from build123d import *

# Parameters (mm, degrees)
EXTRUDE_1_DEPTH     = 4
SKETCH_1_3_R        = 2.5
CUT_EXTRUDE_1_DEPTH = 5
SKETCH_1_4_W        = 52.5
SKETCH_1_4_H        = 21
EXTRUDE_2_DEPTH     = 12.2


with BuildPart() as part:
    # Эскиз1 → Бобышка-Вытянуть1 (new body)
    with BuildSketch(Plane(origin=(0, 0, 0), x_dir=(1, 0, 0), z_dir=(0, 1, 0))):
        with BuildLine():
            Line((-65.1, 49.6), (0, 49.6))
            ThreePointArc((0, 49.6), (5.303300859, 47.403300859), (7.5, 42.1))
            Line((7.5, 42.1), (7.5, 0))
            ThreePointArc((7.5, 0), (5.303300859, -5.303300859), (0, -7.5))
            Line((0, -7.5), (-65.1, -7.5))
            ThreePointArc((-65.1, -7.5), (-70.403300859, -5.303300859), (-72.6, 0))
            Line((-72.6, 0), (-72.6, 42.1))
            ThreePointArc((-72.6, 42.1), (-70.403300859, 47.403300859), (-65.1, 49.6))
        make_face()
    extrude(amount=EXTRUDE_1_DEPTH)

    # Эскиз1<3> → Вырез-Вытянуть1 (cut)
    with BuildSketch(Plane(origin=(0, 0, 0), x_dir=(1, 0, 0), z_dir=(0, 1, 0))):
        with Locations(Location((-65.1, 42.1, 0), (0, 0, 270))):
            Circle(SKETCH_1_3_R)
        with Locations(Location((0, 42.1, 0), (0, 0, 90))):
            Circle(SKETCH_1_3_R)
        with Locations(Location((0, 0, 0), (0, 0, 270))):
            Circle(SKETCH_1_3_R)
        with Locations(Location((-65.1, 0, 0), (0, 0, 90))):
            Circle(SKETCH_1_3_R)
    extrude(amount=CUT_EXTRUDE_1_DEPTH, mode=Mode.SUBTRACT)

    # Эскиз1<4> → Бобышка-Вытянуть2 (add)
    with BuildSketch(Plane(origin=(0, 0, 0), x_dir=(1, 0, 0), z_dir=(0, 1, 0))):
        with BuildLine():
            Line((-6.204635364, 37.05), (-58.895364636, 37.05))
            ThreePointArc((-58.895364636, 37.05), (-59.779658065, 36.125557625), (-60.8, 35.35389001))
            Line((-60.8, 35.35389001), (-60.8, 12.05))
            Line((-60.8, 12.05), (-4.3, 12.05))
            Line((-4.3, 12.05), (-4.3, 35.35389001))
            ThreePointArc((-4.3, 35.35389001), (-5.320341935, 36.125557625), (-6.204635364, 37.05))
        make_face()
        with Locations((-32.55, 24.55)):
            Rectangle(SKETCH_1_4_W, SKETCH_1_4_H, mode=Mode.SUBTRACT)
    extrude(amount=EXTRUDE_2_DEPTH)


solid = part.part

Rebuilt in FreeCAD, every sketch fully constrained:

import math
import FreeCAD as App
import Part
import Sketcher
Q = App.Units.Quantity

doc = App.newDocument("Part")
body = doc.addObject("PartDesign::Body", "Body")

# Sketch on XZ plane
sketch1 = body.newObject("Sketcher::SketchObject", "Sketch")
sketch1.AttachmentSupport = (doc.getObject("XZ_Plane"), [""])
sketch1.MapMode = "FlatFace"
sketch1.addGeometry([
    Part.LineSegment(App.Vector(0, -49.6, 0), App.Vector(-65.1, -49.6, 0)),  # 0
    Part.ArcOfCircle(Part.Circle(App.Vector(-65.1, -42.1, 0), App.Vector(0, 0, 1), 7.5), math.radians(180), math.radians(270)),  # 1
    Part.LineSegment(App.Vector(-72.6, -42.1, 0), App.Vector(-72.6, 0, 0)),  # 2
    Part.ArcOfCircle(Part.Circle(App.Vector(-65.1, 0, 0), App.Vector(0, 0, 1), 7.5), math.radians(90), math.radians(180)),  # 3
    Part.LineSegment(App.Vector(-65.1, 7.5, 0), App.Vector(0, 7.5, 0)),  # 4
    Part.ArcOfCircle(Part.Circle(App.Vector(0, 0, 0), App.Vector(0, 0, 1), 7.5), math.radians(0), math.radians(90)),  # 5
    Part.LineSegment(App.Vector(7.5, 0, 0), App.Vector(7.5, -42.1, 0)),  # 6
    Part.ArcOfCircle(Part.Circle(App.Vector(0, -42.1, 0), App.Vector(0, 0, 1), 7.5), math.radians(-90), math.radians(0)),  # 7
], False)
sketch1.addConstraint([
    Sketcher.Constraint("Tangent", 0, 2, 1, 2),
    Sketcher.Constraint("Tangent", 1, 1, 2, 1),
    Sketcher.Constraint("Tangent", 2, 2, 3, 2),
    Sketcher.Constraint("Tangent", 3, 1, 4, 1),
    Sketcher.Constraint("Tangent", 4, 2, 5, 2),
    Sketcher.Constraint("Tangent", 5, 1, 6, 1),
    Sketcher.Constraint("Tangent", 6, 2, 7, 2),
    Sketcher.Constraint("Tangent", 7, 1, 0, 1),
    Sketcher.Constraint("Horizontal", 0),
    Sketcher.Constraint("Vertical", 2),
    Sketcher.Constraint("Horizontal", 4),
    Sketcher.Constraint("Vertical", 6),
    Sketcher.Constraint("Coincident", 5, 3, -1, 1),
    Sketcher.Constraint("Equal", 1, 3),
    Sketcher.Constraint("Equal", 3, 5),
    Sketcher.Constraint("Equal", 5, 7),
    Sketcher.Constraint("Radius", 1, Q("7.5 mm")),
    Sketcher.Constraint("DistanceX", 0, 2, 0, 1, Q("65.1 mm")),
    Sketcher.Constraint("DistanceY", 2, 1, 2, 2, Q("42.1 mm")),
])
pad1 = body.newObject("PartDesign::Pad", "Pad")
pad1.Profile = sketch1
pad1.Length = 4
pad1.Reversed = True

# Sketch on XZ plane
sketch2 = body.newObject("Sketcher::SketchObject", "Sketch001")
sketch2.AttachmentSupport = (doc.getObject("XZ_Plane"), [""])
sketch2.MapMode = "FlatFace"
sketch2.addGeometry([
    Part.Circle(App.Vector(-65.1, -42.1, 0), App.Vector(0, 0, 1), 2.5),
    Part.Circle(App.Vector(0, -42.1, 0), App.Vector(0, 0, 1), 2.5),
    Part.Circle(App.Vector(0, 0, 0), App.Vector(0, 0, 1), 2.5),
    Part.Circle(App.Vector(-65.1, 0, 0), App.Vector(0, 0, 1), 2.5),
], False)
sketch2.addConstraint([
    Sketcher.Constraint("Coincident", 2, 3, -1, 1),
    Sketcher.Constraint("Equal", 0, 1),
    Sketcher.Constraint("Equal", 1, 2),
    Sketcher.Constraint("Equal", 2, 3),
    Sketcher.Constraint("PointOnObject", 1, 3, -2),
    Sketcher.Constraint("PointOnObject", 3, 3, -1),
    Sketcher.Constraint("Horizontal", 0, 3, 1, 3),
    Sketcher.Constraint("Vertical", 0, 3, 3, 3),
    Sketcher.Constraint("Diameter", 0, Q("5 mm")),
    Sketcher.Constraint("DistanceX", 0, 3, -1, 1, Q("65.1 mm")),
    Sketcher.Constraint("DistanceY", 0, 3, -1, 1, Q("42.1 mm")),
])
pocket1 = body.newObject("PartDesign::Pocket", "Pocket")
pocket1.Profile = sketch2
pocket1.Length = 5

# Sketch on XZ plane
sketch3 = body.newObject("Sketcher::SketchObject", "Sketch002")
sketch3.AttachmentSupport = (doc.getObject("XZ_Plane"), [""])
sketch3.MapMode = "FlatFace"
sketch3.addGeometry([
    Part.LineSegment(App.Vector(-6.204635, -37.05, 0), App.Vector(-58.895365, -37.05, 0)),  # 0
    Part.ArcOfCircle(Part.Circle(App.Vector(-65.1, -42.1, 0), App.Vector(0, 0, 1), 8), math.radians(39.142406), math.radians(57.486385)),  # 1
    Part.LineSegment(App.Vector(-60.8, -35.35389, 0), App.Vector(-60.8, -12.05, 0)),  # 2
    Part.LineSegment(App.Vector(-60.8, -12.05, 0), App.Vector(-4.3, -12.05, 0)),  # 3
    Part.LineSegment(App.Vector(-4.3, -12.05, 0), App.Vector(-4.3, -35.35389, 0)),  # 4
    Part.ArcOfCircle(Part.Circle(App.Vector(0, -42.1, 0), App.Vector(0, 0, 1), 8), math.radians(122.513615), math.radians(140.857594)),  # 5
    Part.LineSegment(App.Vector(-6.3, -14.05, 0), App.Vector(-58.8, -14.05, 0)),  # 6
    Part.LineSegment(App.Vector(-58.8, -14.05, 0), App.Vector(-58.8, -35.05, 0)),  # 7
    Part.LineSegment(App.Vector(-58.8, -35.05, 0), App.Vector(-6.3, -35.05, 0)),  # 8
    Part.LineSegment(App.Vector(-6.3, -35.05, 0), App.Vector(-6.3, -14.05, 0)),  # 9
], False)
sketch3.addConstraint([
    Sketcher.Constraint("Coincident", 0, 2, 1, 1),
    Sketcher.Constraint("Coincident", 1, 2, 2, 1),
    Sketcher.Constraint("Coincident", 2, 2, 3, 1),
    Sketcher.Constraint("Coincident", 3, 2, 4, 1),
    Sketcher.Constraint("Coincident", 4, 2, 5, 1),
    Sketcher.Constraint("Coincident", 5, 2, 0, 1),
    Sketcher.Constraint("Coincident", 6, 2, 7, 1),
    Sketcher.Constraint("Coincident", 7, 2, 8, 1),
    Sketcher.Constraint("Coincident", 8, 2, 9, 1),
    Sketcher.Constraint("Coincident", 9, 2, 6, 1),
    Sketcher.Constraint("Horizontal", 0),
    Sketcher.Constraint("Vertical", 2),
    Sketcher.Constraint("Horizontal", 3),
    Sketcher.Constraint("Vertical", 4),
    Sketcher.Constraint("Horizontal", 6),
    Sketcher.Constraint("Vertical", 7),
    Sketcher.Constraint("Horizontal", 8),
    Sketcher.Constraint("Vertical", 9),
    Sketcher.Constraint("Equal", 1, 5),
    Sketcher.Constraint("PointOnObject", 5, 3, -2),
    Sketcher.Constraint("Horizontal", 1, 3, 5, 3),
    Sketcher.Constraint("Horizontal", 1, 2, 4, 2),
    Sketcher.Constraint("Radius", 1, Q("8 mm")),
    Sketcher.Constraint("DistanceY", 7, 2, 7, 1, Q("21 mm")),
    Sketcher.Constraint("DistanceX", 3, 1, 3, 2, Q("56.5 mm")),
    Sketcher.Constraint("DistanceX", 6, 2, 6, 1, Q("52.5 mm")),
    Sketcher.Constraint("DistanceY", 0, 2, 2, 2, Q("25 mm")),
    Sketcher.Constraint("DistanceX", 2, 2, 6, 2, Q("2 mm")),
    Sketcher.Constraint("DistanceY", 6, 2, 2, 2, Q("2 mm")),
    Sketcher.Constraint("DistanceX", 1, 3, -1, 1, Q("65.1 mm")),
    Sketcher.Constraint("DistanceY", 1, 3, -1, 1, Q("42.1 mm")),
    Sketcher.Constraint("DistanceY", 0, 2, -1, 1, Q("37.05 mm")),
])
pad2 = body.newObject("PartDesign::Pad", "Pad001")
pad2.Profile = sketch3
pad2.Length = 12.2
pad2.Reversed = True

doc.recompute()
